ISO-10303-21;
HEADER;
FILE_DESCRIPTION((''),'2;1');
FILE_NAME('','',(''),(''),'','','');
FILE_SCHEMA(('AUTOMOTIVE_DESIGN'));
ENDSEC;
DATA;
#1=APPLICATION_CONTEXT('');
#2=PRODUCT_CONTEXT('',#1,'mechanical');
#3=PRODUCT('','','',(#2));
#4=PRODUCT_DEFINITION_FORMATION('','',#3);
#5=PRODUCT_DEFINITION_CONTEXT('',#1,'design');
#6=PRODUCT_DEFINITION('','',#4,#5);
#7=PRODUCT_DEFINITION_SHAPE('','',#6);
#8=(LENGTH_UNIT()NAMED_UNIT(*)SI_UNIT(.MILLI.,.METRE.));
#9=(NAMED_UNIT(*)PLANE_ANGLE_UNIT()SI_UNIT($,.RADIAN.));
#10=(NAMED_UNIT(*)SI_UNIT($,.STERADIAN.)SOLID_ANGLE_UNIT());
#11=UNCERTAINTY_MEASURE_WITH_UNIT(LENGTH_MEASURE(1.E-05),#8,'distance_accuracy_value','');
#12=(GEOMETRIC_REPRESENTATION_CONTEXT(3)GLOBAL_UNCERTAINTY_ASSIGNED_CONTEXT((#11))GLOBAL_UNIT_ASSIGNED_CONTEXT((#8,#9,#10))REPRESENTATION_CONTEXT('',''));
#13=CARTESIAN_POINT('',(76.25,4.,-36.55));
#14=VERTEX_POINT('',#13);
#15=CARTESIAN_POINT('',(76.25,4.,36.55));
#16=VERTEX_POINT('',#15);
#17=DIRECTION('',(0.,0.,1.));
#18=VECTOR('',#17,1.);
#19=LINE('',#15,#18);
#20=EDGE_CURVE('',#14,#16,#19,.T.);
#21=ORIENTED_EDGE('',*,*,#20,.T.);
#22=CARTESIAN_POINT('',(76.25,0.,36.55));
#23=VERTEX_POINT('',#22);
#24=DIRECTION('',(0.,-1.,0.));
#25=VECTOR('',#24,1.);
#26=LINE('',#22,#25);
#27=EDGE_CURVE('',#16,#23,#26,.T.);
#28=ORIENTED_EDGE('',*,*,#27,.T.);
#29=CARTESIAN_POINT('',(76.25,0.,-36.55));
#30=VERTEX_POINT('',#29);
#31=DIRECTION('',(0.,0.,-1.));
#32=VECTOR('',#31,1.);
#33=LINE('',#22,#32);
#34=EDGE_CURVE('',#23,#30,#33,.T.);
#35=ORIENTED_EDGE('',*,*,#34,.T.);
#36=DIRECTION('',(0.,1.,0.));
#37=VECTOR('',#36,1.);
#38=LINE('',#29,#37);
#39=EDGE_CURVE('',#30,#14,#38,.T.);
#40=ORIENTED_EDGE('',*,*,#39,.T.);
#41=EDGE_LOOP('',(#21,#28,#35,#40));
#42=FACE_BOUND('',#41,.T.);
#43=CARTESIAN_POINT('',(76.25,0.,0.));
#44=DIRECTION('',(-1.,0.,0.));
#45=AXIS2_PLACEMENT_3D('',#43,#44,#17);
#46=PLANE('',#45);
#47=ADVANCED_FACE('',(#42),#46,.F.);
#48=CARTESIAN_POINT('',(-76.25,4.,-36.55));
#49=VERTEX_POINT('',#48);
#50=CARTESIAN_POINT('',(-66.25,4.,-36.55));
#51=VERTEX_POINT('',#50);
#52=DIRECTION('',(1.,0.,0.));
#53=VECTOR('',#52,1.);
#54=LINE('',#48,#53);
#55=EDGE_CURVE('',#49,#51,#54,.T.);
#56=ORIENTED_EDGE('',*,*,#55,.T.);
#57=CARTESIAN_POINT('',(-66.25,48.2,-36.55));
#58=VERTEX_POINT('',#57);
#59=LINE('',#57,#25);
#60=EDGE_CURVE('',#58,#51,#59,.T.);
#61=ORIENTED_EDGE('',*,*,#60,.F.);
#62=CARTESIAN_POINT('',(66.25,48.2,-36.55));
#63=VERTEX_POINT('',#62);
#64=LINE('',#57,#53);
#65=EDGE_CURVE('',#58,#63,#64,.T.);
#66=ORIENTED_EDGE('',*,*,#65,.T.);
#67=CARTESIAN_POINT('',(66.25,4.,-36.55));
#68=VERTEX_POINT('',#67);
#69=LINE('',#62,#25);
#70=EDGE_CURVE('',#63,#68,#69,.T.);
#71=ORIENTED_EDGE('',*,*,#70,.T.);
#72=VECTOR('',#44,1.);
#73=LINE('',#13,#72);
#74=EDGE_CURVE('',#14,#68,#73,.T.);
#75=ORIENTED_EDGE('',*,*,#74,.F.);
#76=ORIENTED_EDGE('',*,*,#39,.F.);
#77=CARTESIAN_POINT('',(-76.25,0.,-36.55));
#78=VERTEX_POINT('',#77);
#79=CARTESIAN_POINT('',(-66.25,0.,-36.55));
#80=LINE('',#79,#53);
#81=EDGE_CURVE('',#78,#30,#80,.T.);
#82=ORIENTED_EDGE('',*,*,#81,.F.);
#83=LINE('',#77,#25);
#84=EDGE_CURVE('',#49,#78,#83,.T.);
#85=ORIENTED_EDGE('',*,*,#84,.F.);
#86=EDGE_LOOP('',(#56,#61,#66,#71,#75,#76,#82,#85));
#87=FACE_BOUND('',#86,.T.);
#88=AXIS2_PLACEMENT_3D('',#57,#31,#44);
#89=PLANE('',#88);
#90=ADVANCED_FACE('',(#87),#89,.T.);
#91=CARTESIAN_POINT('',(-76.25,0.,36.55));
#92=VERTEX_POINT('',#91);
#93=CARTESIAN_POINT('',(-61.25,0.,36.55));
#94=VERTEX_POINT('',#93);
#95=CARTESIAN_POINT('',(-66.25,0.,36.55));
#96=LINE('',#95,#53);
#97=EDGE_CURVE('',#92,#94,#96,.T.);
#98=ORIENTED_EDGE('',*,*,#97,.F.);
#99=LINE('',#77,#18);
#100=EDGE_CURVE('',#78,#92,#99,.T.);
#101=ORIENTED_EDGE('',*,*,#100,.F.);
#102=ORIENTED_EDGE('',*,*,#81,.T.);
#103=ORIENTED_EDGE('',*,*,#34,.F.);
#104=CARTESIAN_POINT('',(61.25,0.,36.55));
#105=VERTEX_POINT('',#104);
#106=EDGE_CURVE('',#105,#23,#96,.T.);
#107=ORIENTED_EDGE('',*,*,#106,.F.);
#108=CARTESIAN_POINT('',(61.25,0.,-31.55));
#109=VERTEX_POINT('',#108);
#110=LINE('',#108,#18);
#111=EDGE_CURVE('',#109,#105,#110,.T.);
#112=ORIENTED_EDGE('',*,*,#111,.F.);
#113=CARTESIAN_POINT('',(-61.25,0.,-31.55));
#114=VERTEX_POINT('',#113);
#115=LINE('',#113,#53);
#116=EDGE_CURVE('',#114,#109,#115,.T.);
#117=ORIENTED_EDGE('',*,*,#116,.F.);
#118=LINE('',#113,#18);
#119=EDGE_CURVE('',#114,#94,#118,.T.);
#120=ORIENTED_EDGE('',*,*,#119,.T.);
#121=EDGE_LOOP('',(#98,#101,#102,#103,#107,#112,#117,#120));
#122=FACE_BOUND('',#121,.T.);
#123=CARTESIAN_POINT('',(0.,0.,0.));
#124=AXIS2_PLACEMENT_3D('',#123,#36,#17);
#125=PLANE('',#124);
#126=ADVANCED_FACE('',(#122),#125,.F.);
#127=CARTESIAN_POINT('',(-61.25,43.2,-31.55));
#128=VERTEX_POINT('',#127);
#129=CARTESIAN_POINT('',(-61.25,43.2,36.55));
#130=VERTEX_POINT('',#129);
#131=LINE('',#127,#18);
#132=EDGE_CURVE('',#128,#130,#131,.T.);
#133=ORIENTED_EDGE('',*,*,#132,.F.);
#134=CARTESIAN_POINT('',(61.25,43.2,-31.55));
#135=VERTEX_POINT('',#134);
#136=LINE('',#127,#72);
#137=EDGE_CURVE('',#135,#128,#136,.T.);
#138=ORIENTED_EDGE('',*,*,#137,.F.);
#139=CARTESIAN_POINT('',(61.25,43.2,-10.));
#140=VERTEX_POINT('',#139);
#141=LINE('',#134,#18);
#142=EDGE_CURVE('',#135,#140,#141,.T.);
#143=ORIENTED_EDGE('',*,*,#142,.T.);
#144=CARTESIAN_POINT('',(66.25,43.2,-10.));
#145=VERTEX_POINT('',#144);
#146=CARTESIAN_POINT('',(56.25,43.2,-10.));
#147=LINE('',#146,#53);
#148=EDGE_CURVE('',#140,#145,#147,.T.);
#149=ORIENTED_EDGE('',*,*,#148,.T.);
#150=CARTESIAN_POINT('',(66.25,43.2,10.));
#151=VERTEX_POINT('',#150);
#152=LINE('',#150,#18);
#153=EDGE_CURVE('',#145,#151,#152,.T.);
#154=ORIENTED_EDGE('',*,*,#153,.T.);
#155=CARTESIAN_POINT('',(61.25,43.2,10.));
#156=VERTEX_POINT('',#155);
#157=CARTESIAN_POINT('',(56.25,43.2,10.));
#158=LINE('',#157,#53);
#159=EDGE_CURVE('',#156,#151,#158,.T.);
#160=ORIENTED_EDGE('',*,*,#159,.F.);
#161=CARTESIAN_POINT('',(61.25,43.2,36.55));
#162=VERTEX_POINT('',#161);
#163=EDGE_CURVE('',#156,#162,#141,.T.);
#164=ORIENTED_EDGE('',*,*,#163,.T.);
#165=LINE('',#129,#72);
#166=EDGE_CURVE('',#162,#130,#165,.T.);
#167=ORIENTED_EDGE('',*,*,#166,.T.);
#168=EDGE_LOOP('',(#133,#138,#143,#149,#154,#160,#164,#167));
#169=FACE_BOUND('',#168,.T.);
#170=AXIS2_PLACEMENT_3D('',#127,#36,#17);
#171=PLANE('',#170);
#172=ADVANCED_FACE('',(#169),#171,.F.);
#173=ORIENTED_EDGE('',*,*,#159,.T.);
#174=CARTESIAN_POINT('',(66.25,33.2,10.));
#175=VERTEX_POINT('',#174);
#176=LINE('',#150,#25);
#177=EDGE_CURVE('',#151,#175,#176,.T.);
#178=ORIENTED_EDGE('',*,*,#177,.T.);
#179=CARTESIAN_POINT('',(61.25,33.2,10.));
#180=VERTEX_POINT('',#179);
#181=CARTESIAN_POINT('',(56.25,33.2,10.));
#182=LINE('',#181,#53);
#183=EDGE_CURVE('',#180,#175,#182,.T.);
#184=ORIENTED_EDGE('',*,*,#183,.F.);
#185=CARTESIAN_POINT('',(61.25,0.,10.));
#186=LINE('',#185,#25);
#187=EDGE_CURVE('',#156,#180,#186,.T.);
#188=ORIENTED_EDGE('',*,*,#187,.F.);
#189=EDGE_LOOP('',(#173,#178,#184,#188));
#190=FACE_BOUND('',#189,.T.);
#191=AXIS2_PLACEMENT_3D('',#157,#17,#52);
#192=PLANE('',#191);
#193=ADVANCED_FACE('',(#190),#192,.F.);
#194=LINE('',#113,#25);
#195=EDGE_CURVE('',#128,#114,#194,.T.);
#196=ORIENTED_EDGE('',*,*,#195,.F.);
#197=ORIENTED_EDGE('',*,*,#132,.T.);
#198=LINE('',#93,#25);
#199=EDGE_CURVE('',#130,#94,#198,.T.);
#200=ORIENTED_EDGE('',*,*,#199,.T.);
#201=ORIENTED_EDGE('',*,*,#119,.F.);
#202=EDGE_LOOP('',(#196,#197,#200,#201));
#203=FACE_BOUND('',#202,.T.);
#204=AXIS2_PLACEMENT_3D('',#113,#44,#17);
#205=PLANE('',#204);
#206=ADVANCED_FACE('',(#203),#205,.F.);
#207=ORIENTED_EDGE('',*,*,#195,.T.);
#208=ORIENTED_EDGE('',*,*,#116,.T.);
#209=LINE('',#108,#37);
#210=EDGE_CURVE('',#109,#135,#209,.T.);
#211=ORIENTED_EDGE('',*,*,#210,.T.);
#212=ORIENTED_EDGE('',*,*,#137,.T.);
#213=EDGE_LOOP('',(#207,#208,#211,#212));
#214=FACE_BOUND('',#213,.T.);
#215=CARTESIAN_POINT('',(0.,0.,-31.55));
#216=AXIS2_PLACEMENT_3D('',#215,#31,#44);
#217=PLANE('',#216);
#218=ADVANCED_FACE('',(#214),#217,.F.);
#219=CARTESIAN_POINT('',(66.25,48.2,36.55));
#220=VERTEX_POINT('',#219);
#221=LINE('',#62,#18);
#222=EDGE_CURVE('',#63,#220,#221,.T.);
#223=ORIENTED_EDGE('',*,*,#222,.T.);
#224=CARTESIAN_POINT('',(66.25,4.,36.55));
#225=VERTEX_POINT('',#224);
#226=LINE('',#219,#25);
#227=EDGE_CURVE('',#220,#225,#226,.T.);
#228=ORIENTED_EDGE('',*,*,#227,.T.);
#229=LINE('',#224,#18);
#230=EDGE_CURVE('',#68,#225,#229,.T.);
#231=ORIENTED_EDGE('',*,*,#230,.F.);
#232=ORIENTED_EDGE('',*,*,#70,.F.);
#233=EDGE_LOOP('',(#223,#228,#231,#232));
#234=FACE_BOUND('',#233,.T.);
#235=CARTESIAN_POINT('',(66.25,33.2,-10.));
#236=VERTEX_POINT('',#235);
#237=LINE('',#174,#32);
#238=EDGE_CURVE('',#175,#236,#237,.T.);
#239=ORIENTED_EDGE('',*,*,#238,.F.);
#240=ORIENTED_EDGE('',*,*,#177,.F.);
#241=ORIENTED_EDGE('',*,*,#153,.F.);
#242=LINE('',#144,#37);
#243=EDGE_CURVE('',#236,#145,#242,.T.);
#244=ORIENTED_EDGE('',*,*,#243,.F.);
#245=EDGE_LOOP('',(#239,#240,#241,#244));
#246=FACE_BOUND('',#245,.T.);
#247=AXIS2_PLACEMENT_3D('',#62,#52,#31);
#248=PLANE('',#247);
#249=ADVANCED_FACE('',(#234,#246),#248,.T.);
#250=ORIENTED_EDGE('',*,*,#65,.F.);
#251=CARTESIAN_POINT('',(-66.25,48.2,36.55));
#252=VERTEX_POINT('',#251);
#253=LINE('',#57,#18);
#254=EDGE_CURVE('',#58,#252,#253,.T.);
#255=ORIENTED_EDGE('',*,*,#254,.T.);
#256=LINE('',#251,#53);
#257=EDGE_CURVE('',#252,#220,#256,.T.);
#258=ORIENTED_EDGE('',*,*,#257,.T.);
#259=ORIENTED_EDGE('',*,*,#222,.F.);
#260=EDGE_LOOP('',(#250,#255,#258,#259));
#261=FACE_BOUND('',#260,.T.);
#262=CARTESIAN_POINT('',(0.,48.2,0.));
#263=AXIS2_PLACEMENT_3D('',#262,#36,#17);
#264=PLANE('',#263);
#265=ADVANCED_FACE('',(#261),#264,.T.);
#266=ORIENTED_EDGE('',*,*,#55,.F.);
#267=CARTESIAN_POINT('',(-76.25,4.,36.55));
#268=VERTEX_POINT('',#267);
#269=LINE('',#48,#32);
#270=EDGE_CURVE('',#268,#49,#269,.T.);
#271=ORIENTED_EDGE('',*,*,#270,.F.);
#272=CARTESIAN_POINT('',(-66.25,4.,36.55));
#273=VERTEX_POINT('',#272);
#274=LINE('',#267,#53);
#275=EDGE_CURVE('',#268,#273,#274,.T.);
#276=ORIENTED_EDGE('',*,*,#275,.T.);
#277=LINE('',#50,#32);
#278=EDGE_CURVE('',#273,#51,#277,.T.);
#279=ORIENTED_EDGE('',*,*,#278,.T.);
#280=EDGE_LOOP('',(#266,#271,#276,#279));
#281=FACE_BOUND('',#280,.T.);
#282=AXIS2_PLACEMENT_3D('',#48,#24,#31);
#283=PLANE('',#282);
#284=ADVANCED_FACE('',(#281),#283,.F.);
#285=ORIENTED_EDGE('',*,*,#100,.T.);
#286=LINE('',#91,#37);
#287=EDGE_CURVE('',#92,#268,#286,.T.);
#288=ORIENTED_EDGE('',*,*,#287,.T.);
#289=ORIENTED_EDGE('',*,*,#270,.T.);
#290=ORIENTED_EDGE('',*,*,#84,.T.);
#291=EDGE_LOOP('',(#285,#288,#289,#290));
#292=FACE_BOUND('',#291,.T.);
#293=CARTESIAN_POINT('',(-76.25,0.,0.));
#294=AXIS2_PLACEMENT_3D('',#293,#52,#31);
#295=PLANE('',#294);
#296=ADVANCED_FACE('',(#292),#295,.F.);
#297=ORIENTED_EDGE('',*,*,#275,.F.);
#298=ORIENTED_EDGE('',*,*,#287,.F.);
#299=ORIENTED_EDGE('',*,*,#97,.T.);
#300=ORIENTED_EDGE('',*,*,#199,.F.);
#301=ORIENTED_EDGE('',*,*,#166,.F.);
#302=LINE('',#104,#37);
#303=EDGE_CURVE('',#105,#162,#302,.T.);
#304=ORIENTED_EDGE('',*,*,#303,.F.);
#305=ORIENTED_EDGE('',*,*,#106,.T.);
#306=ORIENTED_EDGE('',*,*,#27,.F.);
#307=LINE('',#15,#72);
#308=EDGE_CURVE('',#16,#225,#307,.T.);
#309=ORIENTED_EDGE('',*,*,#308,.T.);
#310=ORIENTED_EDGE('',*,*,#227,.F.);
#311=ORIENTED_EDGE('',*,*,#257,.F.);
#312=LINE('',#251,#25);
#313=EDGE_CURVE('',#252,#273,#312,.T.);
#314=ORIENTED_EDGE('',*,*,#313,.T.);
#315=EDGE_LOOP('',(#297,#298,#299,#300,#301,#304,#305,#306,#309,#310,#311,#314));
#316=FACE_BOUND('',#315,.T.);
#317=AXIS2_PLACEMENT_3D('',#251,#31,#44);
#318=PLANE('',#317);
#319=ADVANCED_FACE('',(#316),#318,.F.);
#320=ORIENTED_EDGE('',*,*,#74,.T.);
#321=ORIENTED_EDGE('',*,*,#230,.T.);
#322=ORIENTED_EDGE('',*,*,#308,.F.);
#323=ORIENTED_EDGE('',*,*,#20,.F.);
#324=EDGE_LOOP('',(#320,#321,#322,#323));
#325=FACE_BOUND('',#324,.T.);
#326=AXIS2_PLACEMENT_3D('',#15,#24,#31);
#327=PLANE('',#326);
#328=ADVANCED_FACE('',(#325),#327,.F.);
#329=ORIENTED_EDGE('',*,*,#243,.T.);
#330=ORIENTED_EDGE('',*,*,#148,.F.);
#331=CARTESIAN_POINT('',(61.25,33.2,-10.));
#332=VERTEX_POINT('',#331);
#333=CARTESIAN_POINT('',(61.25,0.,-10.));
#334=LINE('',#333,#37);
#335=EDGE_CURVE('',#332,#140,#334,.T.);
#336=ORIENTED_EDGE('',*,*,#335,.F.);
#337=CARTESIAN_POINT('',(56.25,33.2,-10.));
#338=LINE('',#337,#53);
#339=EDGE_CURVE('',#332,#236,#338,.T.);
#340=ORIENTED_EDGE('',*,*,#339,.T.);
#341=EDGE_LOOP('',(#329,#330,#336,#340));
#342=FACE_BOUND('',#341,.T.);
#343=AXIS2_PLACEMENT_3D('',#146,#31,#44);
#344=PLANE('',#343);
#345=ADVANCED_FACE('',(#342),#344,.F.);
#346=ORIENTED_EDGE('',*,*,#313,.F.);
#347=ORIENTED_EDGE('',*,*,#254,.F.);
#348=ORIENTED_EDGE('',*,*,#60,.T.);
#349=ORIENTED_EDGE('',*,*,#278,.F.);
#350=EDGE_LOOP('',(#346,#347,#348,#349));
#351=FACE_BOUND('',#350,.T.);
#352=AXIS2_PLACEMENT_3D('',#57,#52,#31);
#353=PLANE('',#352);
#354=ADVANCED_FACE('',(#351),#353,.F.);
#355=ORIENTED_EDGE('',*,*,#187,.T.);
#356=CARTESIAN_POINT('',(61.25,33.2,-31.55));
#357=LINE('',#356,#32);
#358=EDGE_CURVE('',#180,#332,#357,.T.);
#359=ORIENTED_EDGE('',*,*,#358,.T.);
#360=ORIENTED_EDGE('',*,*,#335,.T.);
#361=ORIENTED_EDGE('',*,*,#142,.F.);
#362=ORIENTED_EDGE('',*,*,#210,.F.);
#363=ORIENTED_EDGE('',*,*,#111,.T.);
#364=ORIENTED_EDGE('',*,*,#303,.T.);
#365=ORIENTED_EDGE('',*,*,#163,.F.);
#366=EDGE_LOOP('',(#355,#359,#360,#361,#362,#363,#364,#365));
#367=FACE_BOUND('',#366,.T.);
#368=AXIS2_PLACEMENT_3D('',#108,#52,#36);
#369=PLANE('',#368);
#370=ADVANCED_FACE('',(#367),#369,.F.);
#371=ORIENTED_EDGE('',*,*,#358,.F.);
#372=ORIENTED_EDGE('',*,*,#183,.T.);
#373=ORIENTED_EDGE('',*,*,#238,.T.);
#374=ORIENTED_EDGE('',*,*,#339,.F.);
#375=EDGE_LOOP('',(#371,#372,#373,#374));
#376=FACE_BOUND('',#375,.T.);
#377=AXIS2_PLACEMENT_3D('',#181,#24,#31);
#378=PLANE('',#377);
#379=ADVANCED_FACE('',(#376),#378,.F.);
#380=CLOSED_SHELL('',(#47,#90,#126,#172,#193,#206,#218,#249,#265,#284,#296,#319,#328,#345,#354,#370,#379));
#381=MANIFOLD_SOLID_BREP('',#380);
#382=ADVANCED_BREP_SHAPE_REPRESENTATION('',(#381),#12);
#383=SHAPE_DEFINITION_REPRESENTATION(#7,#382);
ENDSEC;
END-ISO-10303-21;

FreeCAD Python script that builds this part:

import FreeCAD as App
import Part
import Sketcher


def add_polygon(sketch, points):
    """Adds a closed chain of lines whose ends are joined by coincident constraints."""
    first, n = sketch.GeometryCount, len(points)
    for a, b in zip(points, points[1:] + points[:1]):
        sketch.addGeometry(Part.LineSegment(App.Vector(*a, 0), App.Vector(*b, 0)), False)
    for i in range(n):
        sketch.addConstraint(Sketcher.Constraint("Coincident", first + i, 2, first + (i + 1) % n, 1))

doc = App.newDocument("Part")
body = doc.addObject("PartDesign::Body", "Body")

# Sketch on XZ plane
sketch1 = body.newObject("Sketcher::SketchObject", "Sketch")
sketch1.AttachmentSupport = (doc.getObject("XZ_Plane"), [""])
sketch1.MapMode = "FlatFace"
add_polygon(sketch1, [(-66, -37), (-66, 37), (66, 37), (66, -37)])  # lines 0-3
sketch1.addConstraint([
    Sketcher.Constraint("Vertical", 0),
    Sketcher.Constraint("Horizontal", 1),
    Sketcher.Constraint("Vertical", 2),
    Sketcher.Constraint("Horizontal", 3),
    Sketcher.Constraint("Symmetric", 0, 2, 2, 2, -1, 1),
    Sketcher.Constraint("DistanceX", 1, 1, 1, 2, 132.5),
    Sketcher.Constraint("DistanceY", 0, 1, 0, 2, 73.1),
])
pad1 = body.newObject("PartDesign::Pad", "Pad")
pad1.Profile = sketch1
pad1.Length = 48.2
pad1.Reversed = True

# Sketch on XY plane
sketch2 = body.newObject("Sketcher::SketchObject", "Sketch001")
sketch2.AttachmentSupport = (doc.getObject("XY_Plane"), [""])
sketch2.MapMode = "FlatFace"
sketch2.AttachmentOffset = App.Placement(App.Vector(0, 0, 36.55), App.Rotation())
add_polygon(sketch2, [(-61, 43), (-61, 0), (61, 0), (61, 43)])  # lines 0-3
sketch2.addConstraint([
    Sketcher.Constraint("Vertical", 0),
    Sketcher.Constraint("Horizontal", 1),
    Sketcher.Constraint("Vertical", 2),
    Sketcher.Constraint("Horizontal", 3),
    Sketcher.Constraint("Symmetric", 0, 2, 1, 2, -1, 1),
    Sketcher.Constraint("DistanceX", 1, 1, 1, 2, 122.5),
    Sketcher.Constraint("DistanceY", 0, 2, 0, 1, 43.2),
])
pocket1 = body.newObject("PartDesign::Pocket", "Pocket")
pocket1.Profile = sketch2
pocket1.Length = 68.1

# Sketch on YZ plane
sketch3 = body.newObject("Sketcher::SketchObject", "Sketch002")
sketch3.AttachmentSupport = (doc.getObject("YZ_Plane"), [""])
sketch3.MapMode = "FlatFace"
sketch3.AttachmentOffset = App.Placement(App.Vector(0, 0, 66.25), App.Rotation())
add_polygon(sketch3, [(43, 10), (33, 10), (33, -10), (43, -10)])  # lines 0-3
sketch3.addConstraint([
    Sketcher.Constraint("Horizontal", 0),
    Sketcher.Constraint("Vertical", 1),
    Sketcher.Constraint("Horizontal", 2),
    Sketcher.Constraint("Vertical", 3),
    Sketcher.Constraint("DistanceX", 0, 2, 0, 1, 10.0),
    Sketcher.Constraint("DistanceY", 1, 2, 1, 1, 20.0),
    Sketcher.Constraint("DistanceY", -1, 1, 0, 2, 10.0),
    Sketcher.Constraint("DistanceX", -1, 1, 0, 2, 33.2),
])
pocket2 = body.newObject("PartDesign::Pocket", "Pocket001")
pocket2.Profile = sketch3
pocket2.Length = 10

# Sketch on YZ plane
sketch4 = body.newObject("Sketcher::SketchObject", "Sketch003")
sketch4.AttachmentSupport = (doc.getObject("YZ_Plane"), [""])
sketch4.MapMode = "FlatFace"
sketch4.AttachmentOffset = App.Placement(App.Vector(0, 0, 66.25), App.Rotation())
add_polygon(sketch4, [(4, 36.5), (0, 36.5), (0, -36.5), (4, -36.5)])  # lines 0-3
sketch4.addConstraint([
    Sketcher.Constraint("Horizontal", 0),
    Sketcher.Constraint("Vertical", 1),
    Sketcher.Constraint("Horizontal", 2),
    Sketcher.Constraint("Vertical", 3),
    Sketcher.Constraint("Symmetric", 0, 2, 1, 2, -1, 1),
    Sketcher.Constraint("DistanceX", 0, 2, 0, 1, 4.0),
    Sketcher.Constraint("DistanceY", 1, 2, 1, 1, 73.1),
])
pad2 = body.newObject("PartDesign::Pad", "Pad001")
pad2.Profile = sketch4
pad2.Length = 10

# Sketch on YZ plane
sketch5 = body.newObject("Sketcher::SketchObject", "Sketch004")
sketch5.AttachmentSupport = (doc.getObject("YZ_Plane"), [""])
sketch5.MapMode = "FlatFace"
sketch5.AttachmentOffset = App.Placement(App.Vector(0, 0, -66.25), App.Rotation())
add_polygon(sketch5, [(4, -36.5), (0, -36.5), (0, 36.5), (4, 36.5)])  # lines 0-3
sketch5.addConstraint([
    Sketcher.Constraint("Horizontal", 0),
    Sketcher.Constraint("Vertical", 1),
    Sketcher.Constraint("Horizontal", 2),
    Sketcher.Constraint("Vertical", 3),
    Sketcher.Constraint("Symmetric", 0, 2, 1, 2, -1, 1),
    Sketcher.Constraint("DistanceX", 0, 2, 0, 1, 4.0),
    Sketcher.Constraint("DistanceY", 1, 1, 1, 2, 73.1),
])
pad3 = body.newObject("PartDesign::Pad", "Pad002")
pad3.Profile = sketch5
pad3.Length = 10
pad3.Reversed = True

doc.recompute()
